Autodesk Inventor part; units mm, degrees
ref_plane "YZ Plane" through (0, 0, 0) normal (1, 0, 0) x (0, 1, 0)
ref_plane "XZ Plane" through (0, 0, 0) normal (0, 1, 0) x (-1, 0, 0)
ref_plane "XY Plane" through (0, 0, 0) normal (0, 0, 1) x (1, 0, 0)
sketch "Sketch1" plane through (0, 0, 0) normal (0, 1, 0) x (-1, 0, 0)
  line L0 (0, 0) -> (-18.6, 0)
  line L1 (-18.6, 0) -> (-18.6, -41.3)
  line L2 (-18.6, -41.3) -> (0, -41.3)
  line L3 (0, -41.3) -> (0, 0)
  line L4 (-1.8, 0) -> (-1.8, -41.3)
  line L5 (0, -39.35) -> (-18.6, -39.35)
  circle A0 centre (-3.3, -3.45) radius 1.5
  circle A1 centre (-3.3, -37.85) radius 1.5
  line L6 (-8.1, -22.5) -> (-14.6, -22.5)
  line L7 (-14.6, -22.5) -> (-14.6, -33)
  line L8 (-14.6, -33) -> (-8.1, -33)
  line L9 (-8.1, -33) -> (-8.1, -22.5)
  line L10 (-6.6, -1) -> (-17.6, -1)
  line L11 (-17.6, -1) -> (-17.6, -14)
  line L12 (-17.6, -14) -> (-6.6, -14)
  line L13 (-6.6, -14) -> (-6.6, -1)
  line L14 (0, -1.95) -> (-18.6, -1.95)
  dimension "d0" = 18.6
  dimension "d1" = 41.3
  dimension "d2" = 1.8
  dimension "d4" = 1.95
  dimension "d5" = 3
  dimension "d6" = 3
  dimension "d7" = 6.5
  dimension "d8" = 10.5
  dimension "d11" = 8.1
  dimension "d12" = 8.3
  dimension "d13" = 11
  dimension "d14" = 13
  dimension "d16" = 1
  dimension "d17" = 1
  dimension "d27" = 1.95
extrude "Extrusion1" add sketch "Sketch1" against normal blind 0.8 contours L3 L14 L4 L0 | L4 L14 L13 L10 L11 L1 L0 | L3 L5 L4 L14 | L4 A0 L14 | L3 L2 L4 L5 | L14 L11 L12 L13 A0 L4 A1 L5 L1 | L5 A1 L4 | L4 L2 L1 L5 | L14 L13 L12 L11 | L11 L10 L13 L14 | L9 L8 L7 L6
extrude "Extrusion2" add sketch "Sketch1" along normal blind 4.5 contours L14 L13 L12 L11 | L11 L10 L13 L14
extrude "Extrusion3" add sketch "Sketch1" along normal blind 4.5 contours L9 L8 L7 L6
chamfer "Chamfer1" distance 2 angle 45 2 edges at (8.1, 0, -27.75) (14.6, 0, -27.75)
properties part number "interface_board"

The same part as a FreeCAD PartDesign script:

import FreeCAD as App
import Part
import Sketcher
Q = App.Units.Quantity


def edges_at(feature, points):
    """Names of the edges that pass closest to the given points."""
    edges = feature.Shape.Edges
    near = lambda p: min(range(len(edges)), key=lambda i: edges[i].distToShape(Part.Vertex(*p))[0])
    return sorted({f"Edge{near(p) + 1}" for p in points})


def add_polygon(sketch, points):
    """Adds a closed chain of lines whose ends are joined by coincident constraints."""
    first, n = sketch.GeometryCount, len(points)
    for a, b in zip(points, points[1:] + points[:1]):
        sketch.addGeometry(Part.LineSegment(App.Vector(*a, 0), App.Vector(*b, 0)), False)
    for i in range(n):
        sketch.addConstraint(Sketcher.Constraint("Coincident", first + i, 2, first + (i + 1) % n, 1))

doc = App.newDocument("Part")
body = doc.addObject("PartDesign::Body", "Body")

# Sketch on XZ plane
sketch1 = body.newObject("Sketcher::SketchObject", "Sketch")
sketch1.AttachmentSupport = (doc.getObject("XZ_Plane"), [""])
sketch1.MapMode = "FlatFace"
add_polygon(sketch1, [(0, 0), (18.6, 0), (18.6, -41.3), (0, -41.3)])  # lines 0-3
sketch1.addGeometry(Part.Circle(App.Vector(3.3, -37.9, 0), App.Vector(0, 0, 1), 1.5), False)  # 4
sketch1.addGeometry(Part.Circle(App.Vector(3.3, -3.5, 0), App.Vector(0, 0, 1), 1.5), False)  # 5
sketch1.addConstraint(Sketcher.Constraint("Horizontal", 0))
sketch1.addConstraint(Sketcher.Constraint("Vertical", 1))
sketch1.addConstraint(Sketcher.Constraint("Horizontal", 2))
sketch1.addConstraint(Sketcher.Constraint("Vertical", 3))
sketch1.addConstraint(Sketcher.Constraint("Coincident", 3, 2, -1, 1))
sketch1.addConstraint(Sketcher.Constraint("Equal", 4, 5))
sketch1.addConstraint(Sketcher.Constraint("Vertical", 4, 3, 5, 3))
sketch1.addConstraint(Sketcher.Constraint("Diameter", 4, Q("3 mm")))
sketch1.addConstraint(Sketcher.Constraint("DistanceX", 0, 1, 0, 2, Q("18.6 mm")))
sketch1.addConstraint(Sketcher.Constraint("DistanceY", 1, 2, 1, 1, Q("41.3 mm")))
sketch1.addConstraint(Sketcher.Constraint("DistanceX", -1, 1, 4, 3, Q("3.3 mm")))
sketch1.addConstraint(Sketcher.Constraint("DistanceY", 4, 3, 5, 3, Q("34.4 mm")))
sketch1.addConstraint(Sketcher.Constraint("DistanceY", 4, 3, -1, 1, Q("37.85 mm")))
pad1 = body.newObject("PartDesign::Pad", "Pad")
pad1.Profile = sketch1
pad1.Length = 0.8

# Sketch on XZ plane
sketch2 = body.newObject("Sketcher::SketchObject", "Sketch001")
sketch2.AttachmentSupport = (doc.getObject("XZ_Plane"), [""])
sketch2.MapMode = "FlatFace"
add_polygon(sketch2, [(7, -14), (7, -1), (18, -1), (18, -14)])  # lines 0-3
sketch2.addConstraint(Sketcher.Constraint("Vertical", 0))
sketch2.addConstraint(Sketcher.Constraint("Horizontal", 1))
sketch2.addConstraint(Sketcher.Constraint("Vertical", 2))
sketch2.addConstraint(Sketcher.Constraint("Horizontal", 3))
sketch2.addConstraint(Sketcher.Constraint("DistanceX", 1, 1, 1, 2, Q("11 mm")))
sketch2.addConstraint(Sketcher.Constraint("DistanceY", 0, 1, 0, 2, Q("13 mm")))
sketch2.addConstraint(Sketcher.Constraint("DistanceY", 0, 2, -1, 1, Q("1 mm")))
sketch2.addConstraint(Sketcher.Constraint("DistanceX", -1, 1, 0, 2, Q("6.6 mm")))
pad2 = body.newObject("PartDesign::Pad", "Pad001")
pad2.Profile = sketch2
pad2.Length = 4.5
pad2.Reversed = True

# Sketch on XZ plane
sketch3 = body.newObject("Sketcher::SketchObject", "Sketch002")
sketch3.AttachmentSupport = (doc.getObject("XZ_Plane"), [""])
sketch3.MapMode = "FlatFace"
add_polygon(sketch3, [(8, -33), (8, -22), (15, -22), (15, -33)])  # lines 0-3
sketch3.addConstraint(Sketcher.Constraint("Vertical", 0))
sketch3.addConstraint(Sketcher.Constraint("Horizontal", 1))
sketch3.addConstraint(Sketcher.Constraint("Vertical", 2))
sketch3.addConstraint(Sketcher.Constraint("Horizontal", 3))
sketch3.addConstraint(Sketcher.Constraint("DistanceX", 1, 1, 1, 2, Q("6.5 mm")))
sketch3.addConstraint(Sketcher.Constraint("DistanceY", 0, 1, 0, 2, Q("10.5 mm")))
sketch3.addConstraint(Sketcher.Constraint("DistanceX", -1, 1, 0, 2, Q("8.1 mm")))
sketch3.addConstraint(Sketcher.Constraint("DistanceY", 2, 2, -1, 1, Q("33 mm")))
pad3 = body.newObject("PartDesign::Pad", "Pad002")
pad3.Profile = sketch3
pad3.Length = 4.5
pad3.Reversed = True
doc.recompute()

chamfer = body.newObject("PartDesign::Chamfer", "Chamfer")
chamfer.Base = (pad3, edges_at(pad3, [(8.1, 0, -27.75), (14.6, 0, -27.75)]))
chamfer.Size = 2

doc.recompute()
